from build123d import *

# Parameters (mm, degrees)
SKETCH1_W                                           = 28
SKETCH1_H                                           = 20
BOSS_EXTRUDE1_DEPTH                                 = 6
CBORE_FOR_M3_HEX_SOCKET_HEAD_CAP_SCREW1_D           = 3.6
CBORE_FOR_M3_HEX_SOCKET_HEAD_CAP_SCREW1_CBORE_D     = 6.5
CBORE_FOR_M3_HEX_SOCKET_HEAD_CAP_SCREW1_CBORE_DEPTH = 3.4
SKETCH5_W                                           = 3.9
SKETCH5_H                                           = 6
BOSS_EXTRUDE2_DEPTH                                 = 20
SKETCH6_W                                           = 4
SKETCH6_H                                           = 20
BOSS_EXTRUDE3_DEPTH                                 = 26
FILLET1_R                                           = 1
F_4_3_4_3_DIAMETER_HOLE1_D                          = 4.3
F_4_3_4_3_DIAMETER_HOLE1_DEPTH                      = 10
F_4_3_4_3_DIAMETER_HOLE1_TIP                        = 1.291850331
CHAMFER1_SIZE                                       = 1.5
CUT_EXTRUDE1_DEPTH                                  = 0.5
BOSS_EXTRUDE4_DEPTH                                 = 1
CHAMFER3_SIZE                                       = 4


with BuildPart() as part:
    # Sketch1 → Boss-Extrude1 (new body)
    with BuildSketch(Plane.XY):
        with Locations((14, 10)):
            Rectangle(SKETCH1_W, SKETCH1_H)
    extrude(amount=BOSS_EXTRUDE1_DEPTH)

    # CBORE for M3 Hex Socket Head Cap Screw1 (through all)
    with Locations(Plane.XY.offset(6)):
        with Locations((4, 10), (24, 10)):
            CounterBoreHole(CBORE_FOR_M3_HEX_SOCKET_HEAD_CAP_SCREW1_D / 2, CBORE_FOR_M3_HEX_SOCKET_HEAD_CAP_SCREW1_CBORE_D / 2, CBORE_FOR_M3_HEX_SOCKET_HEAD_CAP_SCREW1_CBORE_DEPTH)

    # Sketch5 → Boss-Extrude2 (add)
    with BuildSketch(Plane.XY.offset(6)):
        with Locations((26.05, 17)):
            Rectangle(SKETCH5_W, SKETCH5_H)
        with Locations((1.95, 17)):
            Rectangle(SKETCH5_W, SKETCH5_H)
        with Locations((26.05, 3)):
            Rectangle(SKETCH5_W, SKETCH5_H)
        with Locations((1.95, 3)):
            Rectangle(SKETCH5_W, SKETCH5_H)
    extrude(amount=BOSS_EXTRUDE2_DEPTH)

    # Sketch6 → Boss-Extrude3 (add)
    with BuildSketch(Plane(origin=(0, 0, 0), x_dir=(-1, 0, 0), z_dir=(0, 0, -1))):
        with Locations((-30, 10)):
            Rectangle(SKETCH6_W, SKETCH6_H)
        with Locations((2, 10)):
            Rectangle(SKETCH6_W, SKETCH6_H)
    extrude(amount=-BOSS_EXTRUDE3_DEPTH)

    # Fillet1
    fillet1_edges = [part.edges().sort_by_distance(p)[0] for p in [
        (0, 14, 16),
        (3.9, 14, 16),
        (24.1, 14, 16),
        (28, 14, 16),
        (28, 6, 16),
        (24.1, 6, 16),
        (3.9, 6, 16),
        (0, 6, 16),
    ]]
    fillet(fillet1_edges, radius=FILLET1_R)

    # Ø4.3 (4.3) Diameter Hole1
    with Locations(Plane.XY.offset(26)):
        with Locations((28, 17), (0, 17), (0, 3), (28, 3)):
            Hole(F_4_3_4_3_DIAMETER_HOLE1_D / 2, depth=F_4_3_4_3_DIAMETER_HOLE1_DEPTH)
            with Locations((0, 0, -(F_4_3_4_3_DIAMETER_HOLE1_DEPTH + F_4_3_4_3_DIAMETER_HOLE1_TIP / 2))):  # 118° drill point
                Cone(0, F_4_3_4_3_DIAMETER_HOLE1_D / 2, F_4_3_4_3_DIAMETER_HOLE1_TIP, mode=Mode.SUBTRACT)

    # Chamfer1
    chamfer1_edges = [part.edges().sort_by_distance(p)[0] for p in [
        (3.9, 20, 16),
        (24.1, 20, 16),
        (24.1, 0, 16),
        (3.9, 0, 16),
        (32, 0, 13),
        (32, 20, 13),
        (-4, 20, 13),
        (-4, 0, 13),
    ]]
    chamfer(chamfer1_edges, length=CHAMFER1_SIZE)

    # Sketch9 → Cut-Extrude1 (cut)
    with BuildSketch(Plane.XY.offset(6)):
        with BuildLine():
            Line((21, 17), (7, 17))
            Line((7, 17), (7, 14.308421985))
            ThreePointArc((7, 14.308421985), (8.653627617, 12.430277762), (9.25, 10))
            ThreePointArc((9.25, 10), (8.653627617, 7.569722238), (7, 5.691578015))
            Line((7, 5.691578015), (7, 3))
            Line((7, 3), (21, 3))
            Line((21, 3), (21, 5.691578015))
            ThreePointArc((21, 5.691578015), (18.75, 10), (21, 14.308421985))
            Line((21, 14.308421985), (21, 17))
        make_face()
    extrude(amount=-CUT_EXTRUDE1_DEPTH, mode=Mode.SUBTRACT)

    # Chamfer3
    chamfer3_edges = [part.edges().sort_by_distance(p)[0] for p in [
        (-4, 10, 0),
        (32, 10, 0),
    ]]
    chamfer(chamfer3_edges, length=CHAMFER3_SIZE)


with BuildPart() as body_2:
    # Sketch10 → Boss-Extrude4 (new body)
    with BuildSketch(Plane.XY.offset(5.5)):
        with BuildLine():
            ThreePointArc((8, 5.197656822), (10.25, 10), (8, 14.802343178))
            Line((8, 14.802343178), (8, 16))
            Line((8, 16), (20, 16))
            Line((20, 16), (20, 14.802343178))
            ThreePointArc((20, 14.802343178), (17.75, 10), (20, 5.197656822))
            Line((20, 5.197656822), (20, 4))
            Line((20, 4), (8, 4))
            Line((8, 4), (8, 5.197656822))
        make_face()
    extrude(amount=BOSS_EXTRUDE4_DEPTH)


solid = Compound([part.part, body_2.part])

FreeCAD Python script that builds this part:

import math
import FreeCAD as App
import Part
import Sketcher


def edges_at(feature, points):
    """Names of the edges that pass closest to the given points."""
    edges = feature.Shape.Edges
    near = lambda p: min(range(len(edges)), key=lambda i: edges[i].distToShape(Part.Vertex(*p))[0])
    return sorted({f"Edge{near(p) + 1}" for p in points})

doc = App.newDocument("Part")
body = doc.addObject("PartDesign::Body", "Body")

# Sketch on XY plane
sketch1 = body.newObject("Sketcher::SketchObject", "Sketch")
sketch1.AttachmentSupport = (doc.getObject("XY_Plane"), [""])
sketch1.MapMode = "FlatFace"
sketch1.addGeometry([
    Part.LineSegment(App.Vector(0, 20, 0), App.Vector(0, 0, 0)),
    Part.LineSegment(App.Vector(0, 0, 0), App.Vector(28, 0, 0)),
    Part.LineSegment(App.Vector(28, 0, 0), App.Vector(28, 20, 0)),
    Part.LineSegment(App.Vector(28, 20, 0), App.Vector(0, 20, 0)),
], False)
sketch1.addConstraint([
    Sketcher.Constraint("Coincident", 0, 2, 1, 1),
    Sketcher.Constraint("Coincident", 1, 2, 2, 1),
    Sketcher.Constraint("Coincident", 2, 2, 3, 1),
    Sketcher.Constraint("Coincident", 3, 2, 0, 1),
    Sketcher.Constraint("Vertical", 0),
    Sketcher.Constraint("Horizontal", 1),
    Sketcher.Constraint("Vertical", 2),
    Sketcher.Constraint("Horizontal", 3),
    Sketcher.Constraint("Coincident", 0, 2, -1, 1),
    Sketcher.Constraint("DistanceX", 1, 1, 1, 2, 28.0),
    Sketcher.Constraint("DistanceY", 0, 2, 0, 1, 20.0),
])
pad1 = body.newObject("PartDesign::Pad", "Pad")
pad1.Profile = sketch1
pad1.Length = 6

# Sketch on XY plane
sketch2 = body.newObject("Sketcher::SketchObject", "Sketch001")
sketch2.AttachmentSupport = (doc.getObject("XY_Plane"), [""])
sketch2.MapMode = "FlatFace"
sketch2.AttachmentOffset = App.Placement(App.Vector(0, 0, 6), App.Rotation())
sketch2.addGeometry([
    Part.Circle(App.Vector(4, 10, 0), App.Vector(0, 0, 1), 1.8),
    Part.Circle(App.Vector(24, 10, 0), App.Vector(0, 0, 1), 1.8),
], False)
sketch2.addConstraint([
    Sketcher.Constraint("Equal", 0, 1),
    Sketcher.Constraint("Horizontal", 0, 3, 1, 3),
    Sketcher.Constraint("Diameter", 0, 3.6),
    Sketcher.Constraint("DistanceX", -1, 1, 0, 3, 4.0),
    Sketcher.Constraint("DistanceY", -1, 1, 0, 3, 10.0),
    Sketcher.Constraint("DistanceX", -1, 1, 1, 3, 24.0),
])
doc.recompute()
hole = body.newObject("PartDesign::Hole", "Hole")
hole.Profile = sketch2
hole.ThreadType = "None"
hole.Diameter = 3.6
hole.DepthType = "ThroughAll"
hole.HoleCutType = "Counterbore"
hole.HoleCutDiameter = 6.5
hole.HoleCutDepth = 3.4

# Sketch on XY plane
sketch3 = body.newObject("Sketcher::SketchObject", "Sketch002")
sketch3.AttachmentSupport = (doc.getObject("XY_Plane"), [""])
sketch3.MapMode = "FlatFace"
sketch3.AttachmentOffset = App.Placement(App.Vector(0, 0, 6), App.Rotation())
sketch3.addGeometry([
    Part.LineSegment(App.Vector(24.1, 20, 0), App.Vector(24.1, 14, 0)),  # 0
    Part.LineSegment(App.Vector(24.1, 14, 0), App.Vector(28, 14, 0)),  # 1
    Part.LineSegment(App.Vector(28, 14, 0), App.Vector(28, 20, 0)),  # 2
    Part.LineSegment(App.Vector(28, 20, 0), App.Vector(24.1, 20, 0)),  # 3
    Part.LineSegment(App.Vector(0, 20, 0), App.Vector(0, 14, 0)),  # 4
    Part.LineSegment(App.Vector(0, 14, 0), App.Vector(3.9, 14, 0)),  # 5
    Part.LineSegment(App.Vector(3.9, 14, 0), App.Vector(3.9, 20, 0)),  # 6
    Part.LineSegment(App.Vector(3.9, 20, 0), App.Vector(0, 20, 0)),  # 7
    Part.LineSegment(App.Vector(24.1, 6, 0), App.Vector(24.1, 0, 0)),  # 8
    Part.LineSegment(App.Vector(24.1, 0, 0), App.Vector(28, 0, 0)),  # 9
    Part.LineSegment(App.Vector(28, 0, 0), App.Vector(28, 6, 0)),  # 10
    Part.LineSegment(App.Vector(28, 6, 0), App.Vector(24.1, 6, 0)),  # 11
    Part.LineSegment(App.Vector(0, 6, 0), App.Vector(0, 0, 0)),  # 12
    Part.LineSegment(App.Vector(0, 0, 0), App.Vector(3.9, 0, 0)),  # 13
    Part.LineSegment(App.Vector(3.9, 0, 0), App.Vector(3.9, 6, 0)),  # 14
    Part.LineSegment(App.Vector(3.9, 6, 0), App.Vector(0, 6, 0)),  # 15
], False)
sketch3.addConstraint([
    Sketcher.Constraint("Coincident", 0, 2, 1, 1),
    Sketcher.Constraint("Coincident", 1, 2, 2, 1),
    Sketcher.Constraint("Coincident", 2, 2, 3, 1),
    Sketcher.Constraint("Coincident", 3, 2, 0, 1),
    Sketcher.Constraint("Coincident", 4, 2, 5, 1),
    Sketcher.Constraint("Coincident", 5, 2, 6, 1),
    Sketcher.Constraint("Coincident", 6, 2, 7, 1),
    Sketcher.Constraint("Coincident", 7, 2, 4, 1),
    Sketcher.Constraint("Coincident", 8, 2, 9, 1),
    Sketcher.Constraint("Coincident", 9, 2, 10, 1),
    Sketcher.Constraint("Coincident", 10, 2, 11, 1),
    Sketcher.Constraint("Coincident", 11, 2, 8, 1),
    Sketcher.Constraint("Coincident", 12, 2, 13, 1),
    Sketcher.Constraint("Coincident", 13, 2, 14, 1),
    Sketcher.Constraint("Coincident", 14, 2, 15, 1),
    Sketcher.Constraint("Coincident", 15, 2, 12, 1),
    Sketcher.Constraint("Vertical", 0),
    Sketcher.Constraint("Horizontal", 1),
    Sketcher.Constraint("Vertical", 2),
    Sketcher.Constraint("Horizontal", 3),
    Sketcher.Constraint("Vertical", 4),
    Sketcher.Constraint("Horizontal", 5),
    Sketcher.Constraint("Vertical", 6),
    Sketcher.Constraint("Horizontal", 7),
    Sketcher.Constraint("Vertical", 8),
    Sketcher.Constraint("Horizontal", 9),
    Sketcher.Constraint("Vertical", 10),
    Sketcher.Constraint("Horizontal", 11),
    Sketcher.Constraint("Vertical", 12),
    Sketcher.Constraint("Horizontal", 13),
    Sketcher.Constraint("Vertical", 14),
    Sketcher.Constraint("Horizontal", 15),
    Sketcher.Constraint("Coincident", 12, 2, -1, 1),
    Sketcher.Constraint("PointOnObject", 4, 2, -2),
    Sketcher.Constraint("PointOnObject", 8, 2, -1),
    Sketcher.Constraint("Horizontal", 1, 2, 4, 2),
    Sketcher.Constraint("Horizontal", 3, 2, 6, 2),
    Sketcher.Constraint("Horizontal", 11, 2, 14, 2),
    Sketcher.Constraint("Vertical", 3, 2, 8, 2),
    Sketcher.Constraint("Vertical", 2, 2, 9, 2),
    Sketcher.Constraint("Vertical", 6, 2, 13, 2),
    Sketcher.Constraint("Equal", 3, 5),
    Sketcher.Constraint("Equal", 6, 8),
    Sketcher.Constraint("DistanceY", 0, 2, 0, 1, 6.0),
    Sketcher.Constraint("DistanceX", 1, 1, 1, 2, 3.9),
    Sketcher.Constraint("DistanceY", -1, 1, 0, 2, 14.0),
    Sketcher.Constraint("DistanceX", -1, 1, 1, 2, 28.0),
])
pad2 = body.newObject("PartDesign::Pad", "Pad001")
pad2.Profile = sketch3
pad2.Length = 20

# Sketch on XY plane
sketch4 = body.newObject("Sketcher::SketchObject", "Sketch003")
sketch4.AttachmentSupport = (doc.getObject("XY_Plane"), [""])
sketch4.MapMode = "FlatFace"
sketch4.addGeometry([
    Part.LineSegment(App.Vector(32, 20, 0), App.Vector(32, 0, 0)),  # 0
    Part.LineSegment(App.Vector(32, 0, 0), App.Vector(28, 0, 0)),  # 1
    Part.LineSegment(App.Vector(28, 0, 0), App.Vector(28, 20, 0)),  # 2
    Part.LineSegment(App.Vector(28, 20, 0), App.Vector(32, 20, 0)),  # 3
    Part.LineSegment(App.Vector(0, 20, 0), App.Vector(0, 0, 0)),  # 4
    Part.LineSegment(App.Vector(0, 0, 0), App.Vector(-4, 0, 0)),  # 5
    Part.LineSegment(App.Vector(-4, 0, 0), App.Vector(-4, 20, 0)),  # 6
    Part.LineSegment(App.Vector(-4, 20, 0), App.Vector(0, 20, 0)),  # 7
], False)
sketch4.addConstraint([
    Sketcher.Constraint("Coincident", 0, 2, 1, 1),
    Sketcher.Constraint("Coincident", 1, 2, 2, 1),
    Sketcher.Constraint("Coincident", 2, 2, 3, 1),
    Sketcher.Constraint("Coincident", 3, 2, 0, 1),
    Sketcher.Constraint("Coincident", 4, 2, 5, 1),
    Sketcher.Constraint("Coincident", 5, 2, 6, 1),
    Sketcher.Constraint("Coincident", 6, 2, 7, 1),
    Sketcher.Constraint("Coincident", 7, 2, 4, 1),
    Sketcher.Constraint("Vertical", 0),
    Sketcher.Constraint("Horizontal", 1),
    Sketcher.Constraint("Vertical", 2),
    Sketcher.Constraint("Horizontal", 3),
    Sketcher.Constraint("Vertical", 4),
    Sketcher.Constraint("Horizontal", 5),
    Sketcher.Constraint("Vertical", 6),
    Sketcher.Constraint("Horizontal", 7),
    Sketcher.Constraint("Coincident", 4, 2, -1, 1),
    Sketcher.Constraint("PointOnObject", 0, 2, -1),
    Sketcher.Constraint("Horizontal", 3, 2, 6, 2),
    Sketcher.Constraint("Equal", 3, 5),
    Sketcher.Constraint("DistanceX", 1, 2, 1, 1, 4.0),
    Sketcher.Constraint("DistanceY", 0, 2, 0, 1, 20.0),
    Sketcher.Constraint("DistanceX", -1, 1, 0, 2, 32.0),
])
pad3 = body.newObject("PartDesign::Pad", "Pad002")
pad3.Profile = sketch4
pad3.Length = 26
doc.recompute()

fillet = body.newObject("PartDesign::Fillet", "Fillet")
fillet.Base = (pad3, edges_at(pad3, [
    (0, 14, 16),
    (3.9, 14, 16),
    (24.1, 14, 16),
    (28, 14, 16),
    (28, 6, 16),
    (24.1, 6, 16),
    (3.9, 6, 16),
    (0, 6, 16),
]))
fillet.Radius = 1

# Sketch on XY plane
sketch5 = body.newObject("Sketcher::SketchObject", "Sketch004")
sketch5.AttachmentSupport = (doc.getObject("XY_Plane"), [""])
sketch5.MapMode = "FlatFace"
sketch5.AttachmentOffset = App.Placement(App.Vector(0, 0, 26), App.Rotation())
sketch5.addGeometry([
    Part.Circle(App.Vector(28, 17, 0), App.Vector(0, 0, 1), 2.1),
    Part.Circle(App.Vector(0, 17, 0), App.Vector(0, 0, 1), 2.1),
    Part.Circle(App.Vector(0, 3, 0), App.Vector(0, 0, 1), 2.1),
    Part.Circle(App.Vector(28, 3, 0), App.Vector(0, 0, 1), 2.1),
], False)
sketch5.addConstraint([
    Sketcher.Constraint("Equal", 0, 1),
    Sketcher.Constraint("Equal", 1, 2),
    Sketcher.Constraint("Equal", 2, 3),
    Sketcher.Constraint("PointOnObject", 1, 3, -2),
    Sketcher.Constraint("PointOnObject", 2, 3, -2),
    Sketcher.Constraint("Horizontal", 0, 3, 1, 3),
    Sketcher.Constraint("Horizontal", 2, 3, 3, 3),
    Sketcher.Constraint("Vertical", 0, 3, 3, 3),
    Sketcher.Constraint("Diameter", 0, 4.3),
    Sketcher.Constraint("DistanceX", -1, 1, 0, 3, 28.0),
    Sketcher.Constraint("DistanceY", -1, 1, 0, 3, 17.0),
    Sketcher.Constraint("DistanceY", -1, 1, 2, 3, 3.0),
])
doc.recompute()
hole2 = body.newObject("PartDesign::Hole", "Hole001")
hole2.Profile = sketch5
hole2.ThreadType = "None"
hole2.Diameter = 4.3
hole2.DepthType = "Dimension"
hole2.Depth = 10
hole2.DrillPoint = "Angled"
hole2.DrillPointAngle = 118
doc.recompute()

chamfer = body.newObject("PartDesign::Chamfer", "Chamfer")
chamfer.Base = (hole2, edges_at(hole2, [
    (3.9, 20, 16),
    (24.1, 20, 16),
    (24.1, 0, 16),
    (3.9, 0, 16),
    (32, 0, 13),
    (32, 20, 13),
    (-4, 20, 13),
    (-4, 0, 13),
]))
chamfer.Size = 1.5

# Sketch on XY plane
sketch6 = body.newObject("Sketcher::SketchObject", "Sketch005")
sketch6.AttachmentSupport = (doc.getObject("XY_Plane"), [""])
sketch6.MapMode = "FlatFace"
sketch6.AttachmentOffset = App.Placement(App.Vector(0, 0, 6), App.Rotation())
sketch6.addGeometry([
    Part.LineSegment(App.Vector(21, 17, 0), App.Vector(7, 17, 0)),  # 0
    Part.LineSegment(App.Vector(7, 17, 0), App.Vector(7, 14.3, 0)),  # 1
    Part.ArcOfCircle(Part.Circle(App.Vector(4, 10, 0), App.Vector(0, 0, 1), 5.3), math.radians(0), math.radians(55)),  # 2
    Part.ArcOfCircle(Part.Circle(App.Vector(4, 10, 0), App.Vector(0, 0, 1), 5.3), math.radians(-55), math.radians(0)),  # 3
    Part.LineSegment(App.Vector(7, 5.7, 0), App.Vector(7, 3, 0)),  # 4
    Part.LineSegment(App.Vector(7, 3, 0), App.Vector(21, 3, 0)),  # 5
    Part.LineSegment(App.Vector(21, 3, 0), App.Vector(21, 5.7, 0)),  # 6
    Part.ArcOfCircle(Part.Circle(App.Vector(24, 10, 0), App.Vector(0, 0, 1), 5.2), math.radians(125), math.radians(235)),  # 7
    Part.LineSegment(App.Vector(21, 14.3, 0), App.Vector(21, 17, 0)),  # 8
], False)
sketch6.addConstraint([
    Sketcher.Constraint("Coincident", 0, 2, 1, 1),
    Sketcher.Constraint("Coincident", 1, 2, 2, 2),
    Sketcher.Constraint("Tangent", 2, 1, 3, 2),
    Sketcher.Constraint("Coincident", 3, 1, 4, 1),
    Sketcher.Constraint("Coincident", 4, 2, 5, 1),
    Sketcher.Constraint("Coincident", 5, 2, 6, 1),
    Sketcher.Constraint("Coincident", 6, 2, 7, 2),
    Sketcher.Constraint("Coincident", 7, 1, 8, 1),
    Sketcher.Constraint("Coincident", 8, 2, 0, 1),
    Sketcher.Constraint("Horizontal", 0),
    Sketcher.Constraint("Vertical", 1),
    Sketcher.Constraint("Vertical", 4),
    Sketcher.Constraint("Horizontal", 5),
    Sketcher.Constraint("Vertical", 6),
    Sketcher.Constraint("Vertical", 8),
    Sketcher.Constraint("Equal", 2, 3),
    Sketcher.Constraint("Equal", 3, 7),
    Sketcher.Constraint("Horizontal", 3, 3, 7, 3),
    Sketcher.Constraint("Horizontal", 7, 3, 2, 1),
    Sketcher.Constraint("Horizontal", 3, 1, 6, 2),
    Sketcher.Constraint("Horizontal", 1, 2, 7, 1),
    Sketcher.Constraint("Vertical", 1, 2, 3, 1),
    Sketcher.Constraint("Equal", 1, 4),
    Sketcher.Constraint("DistanceX", 0, 2, 0, 1, 14.0),
    Sketcher.Constraint("Radius", 2, 5.25),
    Sketcher.Constraint("DistanceX", -1, 1, 2, 3, 4.0),
    Sketcher.Constraint("DistanceY", -1, 1, 2, 3, 10.0),
    Sketcher.Constraint("DistanceX", -1, 1, 7, 3, 24.0),
    Sketcher.Constraint("DistanceY", -1, 1, 0, 2, 17.0),
])
pocket1 = body.newObject("PartDesign::Pocket", "Pocket")
pocket1.Profile = sketch6
pocket1.Length = 0.5
doc.recompute()

chamfer2 = body.newObject("PartDesign::Chamfer", "Chamfer001")
chamfer2.Base = (pocket1, edges_at(pocket1, [(-4, 10, 0), (32, 10, 0)]))
chamfer2.Size = 4
body2 = doc.addObject("PartDesign::Body", "Body001")

# Sketch on XY plane
sketch7 = body2.newObject("Sketcher::SketchObject", "Sketch006")
sketch7.AttachmentSupport = (doc.getObject("XY_Plane001"), [""])
sketch7.MapMode = "FlatFace"
sketch7.AttachmentOffset = App.Placement(App.Vector(0, 0, 5.5), App.Rotation())
sketch7.addGeometry([
    Part.ArcOfCircle(Part.Circle(App.Vector(4, 10, 0), App.Vector(0, 0, 1), 6.2), math.radians(-50), math.radians(50)),  # 0
    Part.LineSegment(App.Vector(8, 5.2, 0), App.Vector(8, 4, 0)),  # 1
    Part.LineSegment(App.Vector(8, 4, 0), App.Vector(20, 4, 0)),  # 2
    Part.LineSegment(App.Vector(20, 4, 0), App.Vector(20, 5.2, 0)),  # 3
    Part.ArcOfCircle(Part.Circle(App.Vector(24, 10, 0), App.Vector(0, 0, 1), 6.2), math.radians(130), math.radians(230)),  # 4
    Part.LineSegment(App.Vector(20, 14.8, 0), App.Vector(20, 16, 0)),  # 5
    Part.LineSegment(App.Vector(20, 16, 0), App.Vector(8, 16, 0)),  # 6
    Part.LineSegment(App.Vector(8, 16, 0), App.Vector(8, 14.8, 0)),  # 7
], False)
sketch7.addConstraint([
    Sketcher.Constraint("Coincident", 0, 1, 1, 1),
    Sketcher.Constraint("Coincident", 1, 2, 2, 1),
    Sketcher.Constraint("Coincident", 2, 2, 3, 1),
    Sketcher.Constraint("Coincident", 3, 2, 4, 2),
    Sketcher.Constraint("Coincident", 4, 1, 5, 1),
    Sketcher.Constraint("Coincident", 5, 2, 6, 1),
    Sketcher.Constraint("Coincident", 6, 2, 7, 1),
    Sketcher.Constraint("Coincident", 7, 2, 0, 2),
    Sketcher.Constraint("Vertical", 1),
    Sketcher.Constraint("Horizontal", 2),
    Sketcher.Constraint("Vertical", 3),
    Sketcher.Constraint("Vertical", 5),
    Sketcher.Constraint("Horizontal", 6),
    Sketcher.Constraint("Vertical", 7),
    Sketcher.Constraint("Equal", 0, 4),
    Sketcher.Constraint("Horizontal", 0, 3, 4, 3),
    Sketcher.Constraint("Horizontal", 0, 1, 3, 2),
    Sketcher.Constraint("Horizontal", 4, 1, 7, 2),
    Sketcher.Constraint("Vertical", 3, 2, 4, 1),
    Sketcher.Constraint("Equal", 3, 5),
    Sketcher.Constraint("DistanceX", 2, 1, 2, 2, 12.0),
    Sketcher.Constraint("Radius", 0, 6.25),
    Sketcher.Constraint("DistanceX", -1, 1, 0, 3, 4.0),
    Sketcher.Constraint("DistanceY", -1, 1, 0, 3, 10.0),
    Sketcher.Constraint("DistanceX", -1, 1, 4, 3, 24.0),
    Sketcher.Constraint("DistanceY", -1, 1, 1, 2, 4.0),
])
pad4 = body2.newObject("PartDesign::Pad", "Pad003")
pad4.Profile = sketch7
pad4.Length = 1

doc.recompute()
